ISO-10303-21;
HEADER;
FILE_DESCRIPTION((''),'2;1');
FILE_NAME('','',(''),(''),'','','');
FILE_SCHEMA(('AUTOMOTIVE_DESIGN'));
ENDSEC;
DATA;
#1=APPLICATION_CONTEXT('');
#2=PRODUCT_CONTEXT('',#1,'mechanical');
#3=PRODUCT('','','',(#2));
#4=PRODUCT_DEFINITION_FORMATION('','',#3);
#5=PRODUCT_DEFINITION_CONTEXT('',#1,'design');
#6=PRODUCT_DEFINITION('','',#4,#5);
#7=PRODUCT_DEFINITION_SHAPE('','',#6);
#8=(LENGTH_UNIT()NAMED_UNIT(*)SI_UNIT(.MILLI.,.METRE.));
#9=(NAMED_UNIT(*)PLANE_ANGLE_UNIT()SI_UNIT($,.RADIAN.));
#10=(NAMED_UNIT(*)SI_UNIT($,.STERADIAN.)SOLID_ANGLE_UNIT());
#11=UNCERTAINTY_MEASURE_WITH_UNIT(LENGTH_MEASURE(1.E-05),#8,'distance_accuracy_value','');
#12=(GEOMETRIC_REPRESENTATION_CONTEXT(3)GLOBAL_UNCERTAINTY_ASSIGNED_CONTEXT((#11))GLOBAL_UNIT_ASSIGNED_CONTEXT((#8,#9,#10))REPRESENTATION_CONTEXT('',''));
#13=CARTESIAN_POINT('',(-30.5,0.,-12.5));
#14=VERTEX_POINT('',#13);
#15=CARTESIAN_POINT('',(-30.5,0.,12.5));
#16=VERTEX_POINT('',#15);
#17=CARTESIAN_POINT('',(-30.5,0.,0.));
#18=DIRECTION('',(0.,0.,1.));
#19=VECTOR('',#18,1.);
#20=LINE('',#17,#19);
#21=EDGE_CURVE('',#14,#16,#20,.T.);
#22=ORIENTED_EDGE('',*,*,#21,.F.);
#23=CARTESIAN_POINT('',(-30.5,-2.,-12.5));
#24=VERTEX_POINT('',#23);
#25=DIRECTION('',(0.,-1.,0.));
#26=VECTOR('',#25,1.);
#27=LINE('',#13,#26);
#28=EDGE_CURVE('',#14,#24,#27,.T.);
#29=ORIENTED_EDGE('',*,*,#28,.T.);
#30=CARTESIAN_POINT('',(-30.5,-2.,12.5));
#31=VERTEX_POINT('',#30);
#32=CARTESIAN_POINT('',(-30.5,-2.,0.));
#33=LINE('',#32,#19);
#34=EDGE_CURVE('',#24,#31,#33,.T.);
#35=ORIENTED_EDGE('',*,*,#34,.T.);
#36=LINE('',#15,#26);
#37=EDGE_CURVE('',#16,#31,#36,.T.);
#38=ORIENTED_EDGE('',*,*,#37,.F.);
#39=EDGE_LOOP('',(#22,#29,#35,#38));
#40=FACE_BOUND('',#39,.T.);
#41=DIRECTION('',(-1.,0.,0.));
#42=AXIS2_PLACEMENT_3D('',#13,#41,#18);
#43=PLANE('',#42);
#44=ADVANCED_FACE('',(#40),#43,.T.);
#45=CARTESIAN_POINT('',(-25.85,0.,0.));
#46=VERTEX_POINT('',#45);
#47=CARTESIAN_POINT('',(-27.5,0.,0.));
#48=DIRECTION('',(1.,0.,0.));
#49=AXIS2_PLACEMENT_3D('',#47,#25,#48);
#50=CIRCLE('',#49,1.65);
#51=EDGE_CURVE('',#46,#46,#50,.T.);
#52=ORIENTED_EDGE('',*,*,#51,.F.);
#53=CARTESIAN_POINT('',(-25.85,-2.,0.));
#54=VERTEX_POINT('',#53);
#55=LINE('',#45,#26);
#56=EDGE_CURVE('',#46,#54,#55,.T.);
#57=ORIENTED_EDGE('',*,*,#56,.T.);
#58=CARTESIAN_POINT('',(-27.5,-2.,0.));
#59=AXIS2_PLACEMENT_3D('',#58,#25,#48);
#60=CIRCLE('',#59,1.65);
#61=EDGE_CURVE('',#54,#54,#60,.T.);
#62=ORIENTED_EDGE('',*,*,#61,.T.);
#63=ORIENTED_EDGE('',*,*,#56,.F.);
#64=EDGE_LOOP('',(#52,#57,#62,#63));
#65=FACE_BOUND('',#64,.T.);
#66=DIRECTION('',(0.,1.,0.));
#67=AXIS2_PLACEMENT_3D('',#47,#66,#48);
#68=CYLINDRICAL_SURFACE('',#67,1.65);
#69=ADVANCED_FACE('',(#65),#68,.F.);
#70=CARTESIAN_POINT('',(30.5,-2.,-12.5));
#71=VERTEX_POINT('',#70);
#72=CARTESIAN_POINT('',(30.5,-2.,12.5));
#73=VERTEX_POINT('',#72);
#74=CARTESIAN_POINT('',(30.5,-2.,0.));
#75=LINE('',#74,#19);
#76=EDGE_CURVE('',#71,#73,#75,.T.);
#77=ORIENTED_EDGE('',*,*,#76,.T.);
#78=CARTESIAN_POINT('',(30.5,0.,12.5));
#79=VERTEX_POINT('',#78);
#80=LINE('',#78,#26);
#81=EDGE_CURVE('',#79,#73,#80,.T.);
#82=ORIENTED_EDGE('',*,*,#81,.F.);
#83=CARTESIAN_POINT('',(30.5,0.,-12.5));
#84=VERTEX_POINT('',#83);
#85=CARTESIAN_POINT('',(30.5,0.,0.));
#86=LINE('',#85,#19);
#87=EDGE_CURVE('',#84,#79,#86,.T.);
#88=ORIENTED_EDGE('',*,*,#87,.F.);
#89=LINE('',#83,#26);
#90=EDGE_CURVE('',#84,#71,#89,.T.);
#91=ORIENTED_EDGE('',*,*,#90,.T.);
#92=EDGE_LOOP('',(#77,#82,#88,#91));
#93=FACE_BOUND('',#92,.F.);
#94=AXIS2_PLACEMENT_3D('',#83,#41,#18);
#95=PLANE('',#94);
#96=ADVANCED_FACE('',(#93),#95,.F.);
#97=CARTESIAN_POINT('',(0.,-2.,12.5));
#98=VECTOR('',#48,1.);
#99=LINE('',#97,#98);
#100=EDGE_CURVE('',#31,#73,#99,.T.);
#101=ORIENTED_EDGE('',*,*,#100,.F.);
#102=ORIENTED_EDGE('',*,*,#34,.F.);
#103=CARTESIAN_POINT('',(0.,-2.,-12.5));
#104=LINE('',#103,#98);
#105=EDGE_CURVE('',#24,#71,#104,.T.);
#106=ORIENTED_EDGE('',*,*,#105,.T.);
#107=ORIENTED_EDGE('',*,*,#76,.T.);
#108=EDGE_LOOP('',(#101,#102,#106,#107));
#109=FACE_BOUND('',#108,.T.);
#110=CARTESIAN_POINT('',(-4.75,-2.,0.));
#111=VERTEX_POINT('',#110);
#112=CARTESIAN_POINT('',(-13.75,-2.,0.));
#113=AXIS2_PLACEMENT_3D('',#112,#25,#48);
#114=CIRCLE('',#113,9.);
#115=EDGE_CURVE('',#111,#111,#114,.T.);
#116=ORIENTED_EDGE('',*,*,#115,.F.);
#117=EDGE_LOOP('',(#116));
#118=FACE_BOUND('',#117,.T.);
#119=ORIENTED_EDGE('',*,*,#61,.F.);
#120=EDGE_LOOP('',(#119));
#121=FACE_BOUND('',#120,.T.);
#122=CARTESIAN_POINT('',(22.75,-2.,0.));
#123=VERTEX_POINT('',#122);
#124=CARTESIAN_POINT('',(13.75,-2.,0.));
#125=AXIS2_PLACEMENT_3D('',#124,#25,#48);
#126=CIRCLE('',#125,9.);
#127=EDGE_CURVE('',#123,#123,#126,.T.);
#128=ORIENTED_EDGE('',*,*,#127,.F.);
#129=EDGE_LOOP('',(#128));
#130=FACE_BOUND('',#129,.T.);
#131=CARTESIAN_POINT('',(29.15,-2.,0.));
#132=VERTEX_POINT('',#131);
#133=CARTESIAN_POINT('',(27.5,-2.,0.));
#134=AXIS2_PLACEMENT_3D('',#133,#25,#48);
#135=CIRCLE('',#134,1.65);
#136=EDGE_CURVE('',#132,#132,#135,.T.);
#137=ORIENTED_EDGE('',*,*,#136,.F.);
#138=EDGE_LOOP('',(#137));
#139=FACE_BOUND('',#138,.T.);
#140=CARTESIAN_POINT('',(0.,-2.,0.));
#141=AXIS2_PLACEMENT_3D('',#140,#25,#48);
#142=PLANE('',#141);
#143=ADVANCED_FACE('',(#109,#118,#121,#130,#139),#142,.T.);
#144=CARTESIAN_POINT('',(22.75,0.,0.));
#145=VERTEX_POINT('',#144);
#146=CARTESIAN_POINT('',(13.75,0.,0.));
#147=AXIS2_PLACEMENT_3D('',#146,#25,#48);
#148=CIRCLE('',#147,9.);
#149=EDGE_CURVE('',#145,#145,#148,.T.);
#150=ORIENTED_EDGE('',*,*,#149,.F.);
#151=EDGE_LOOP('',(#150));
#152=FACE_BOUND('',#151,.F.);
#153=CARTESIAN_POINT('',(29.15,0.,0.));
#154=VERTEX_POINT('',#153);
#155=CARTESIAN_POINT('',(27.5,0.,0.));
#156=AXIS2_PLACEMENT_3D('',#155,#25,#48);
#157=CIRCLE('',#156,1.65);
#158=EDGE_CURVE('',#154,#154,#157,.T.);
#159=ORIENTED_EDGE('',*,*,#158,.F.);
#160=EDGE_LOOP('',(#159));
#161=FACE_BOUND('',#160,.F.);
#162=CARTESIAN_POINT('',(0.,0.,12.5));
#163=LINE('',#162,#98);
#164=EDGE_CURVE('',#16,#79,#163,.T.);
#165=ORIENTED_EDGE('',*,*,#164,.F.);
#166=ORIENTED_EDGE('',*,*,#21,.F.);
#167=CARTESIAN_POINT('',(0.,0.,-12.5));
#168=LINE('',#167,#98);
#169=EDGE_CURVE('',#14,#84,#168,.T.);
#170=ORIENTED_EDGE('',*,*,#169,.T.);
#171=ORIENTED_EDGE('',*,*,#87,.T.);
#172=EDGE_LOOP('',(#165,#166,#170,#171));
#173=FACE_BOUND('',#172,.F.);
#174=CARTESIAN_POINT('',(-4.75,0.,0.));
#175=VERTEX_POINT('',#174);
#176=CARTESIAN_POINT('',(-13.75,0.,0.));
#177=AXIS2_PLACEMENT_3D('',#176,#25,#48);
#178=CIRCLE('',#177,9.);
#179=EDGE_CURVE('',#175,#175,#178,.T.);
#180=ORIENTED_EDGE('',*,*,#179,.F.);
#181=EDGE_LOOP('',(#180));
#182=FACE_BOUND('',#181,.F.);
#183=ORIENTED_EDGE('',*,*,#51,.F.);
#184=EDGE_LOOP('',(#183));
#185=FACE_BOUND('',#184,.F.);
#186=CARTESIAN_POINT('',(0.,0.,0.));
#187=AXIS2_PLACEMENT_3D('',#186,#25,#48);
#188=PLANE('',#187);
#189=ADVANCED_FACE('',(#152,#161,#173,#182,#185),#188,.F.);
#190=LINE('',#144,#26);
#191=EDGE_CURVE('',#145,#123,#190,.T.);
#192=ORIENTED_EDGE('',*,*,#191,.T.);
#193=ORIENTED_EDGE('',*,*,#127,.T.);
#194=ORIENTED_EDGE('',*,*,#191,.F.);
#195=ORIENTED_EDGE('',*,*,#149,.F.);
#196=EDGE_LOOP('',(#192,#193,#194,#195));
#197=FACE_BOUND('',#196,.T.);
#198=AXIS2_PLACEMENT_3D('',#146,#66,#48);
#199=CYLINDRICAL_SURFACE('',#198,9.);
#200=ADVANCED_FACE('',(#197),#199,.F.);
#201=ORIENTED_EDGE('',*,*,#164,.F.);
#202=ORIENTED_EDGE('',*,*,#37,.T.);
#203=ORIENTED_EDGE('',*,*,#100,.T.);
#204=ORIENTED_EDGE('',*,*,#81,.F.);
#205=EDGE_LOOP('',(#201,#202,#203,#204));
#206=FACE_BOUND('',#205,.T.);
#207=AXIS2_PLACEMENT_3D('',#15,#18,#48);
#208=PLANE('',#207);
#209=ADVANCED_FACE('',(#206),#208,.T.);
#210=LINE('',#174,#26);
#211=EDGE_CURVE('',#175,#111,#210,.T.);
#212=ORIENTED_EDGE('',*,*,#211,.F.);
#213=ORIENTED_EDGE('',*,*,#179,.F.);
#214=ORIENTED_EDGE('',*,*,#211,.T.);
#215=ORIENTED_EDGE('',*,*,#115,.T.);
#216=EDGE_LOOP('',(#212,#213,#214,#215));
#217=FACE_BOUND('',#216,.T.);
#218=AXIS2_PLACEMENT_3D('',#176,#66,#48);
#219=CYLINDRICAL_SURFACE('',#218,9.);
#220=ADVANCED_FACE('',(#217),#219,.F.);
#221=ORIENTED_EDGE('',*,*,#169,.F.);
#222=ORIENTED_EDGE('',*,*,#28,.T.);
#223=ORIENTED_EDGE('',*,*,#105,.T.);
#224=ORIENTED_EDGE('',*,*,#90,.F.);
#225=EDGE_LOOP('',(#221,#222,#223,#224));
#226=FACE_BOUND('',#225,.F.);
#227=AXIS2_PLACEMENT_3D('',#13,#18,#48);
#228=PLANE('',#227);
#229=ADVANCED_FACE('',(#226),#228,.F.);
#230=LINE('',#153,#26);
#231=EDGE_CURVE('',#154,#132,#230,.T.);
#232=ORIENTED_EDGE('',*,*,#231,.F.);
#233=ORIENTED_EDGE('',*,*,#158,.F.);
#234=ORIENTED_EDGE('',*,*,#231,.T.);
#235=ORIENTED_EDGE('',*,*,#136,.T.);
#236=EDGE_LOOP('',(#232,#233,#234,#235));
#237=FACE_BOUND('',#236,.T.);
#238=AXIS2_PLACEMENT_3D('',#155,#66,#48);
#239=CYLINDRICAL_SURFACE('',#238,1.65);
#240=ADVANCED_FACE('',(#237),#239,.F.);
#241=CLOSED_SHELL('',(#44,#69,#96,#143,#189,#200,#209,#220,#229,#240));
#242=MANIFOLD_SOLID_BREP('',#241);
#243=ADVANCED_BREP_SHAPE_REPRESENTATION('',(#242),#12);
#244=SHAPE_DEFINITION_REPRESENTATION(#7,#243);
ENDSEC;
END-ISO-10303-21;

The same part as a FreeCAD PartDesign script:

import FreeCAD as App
import Part
import Sketcher

V = App.Vector


def add_polygon(sketch, points):
    """Adds a closed chain of lines whose ends are joined by coincident constraints."""
    first, n = sketch.GeometryCount, len(points)
    for a, b in zip(points, points[1:] + points[:1]):
        sketch.addGeometry(Part.LineSegment(App.Vector(*a, 0), App.Vector(*b, 0)), False)
    for i in range(n):
        sketch.addConstraint(Sketcher.Constraint("Coincident", first + i, 2, first + (i + 1) % n, 1))

doc = App.newDocument("Part")
body = doc.addObject("PartDesign::Body", "Body")

sketch1 = body.newObject("Sketcher::SketchObject", "Sketch")
sketch1.AttachmentSupport = (doc.getObject("XZ_Plane"), [""])
sketch1.MapMode = "FlatFace"
add_polygon(sketch1, [(-30.5, 12.5), (-30.5, -12.5), (30.5, -12.5), (30.5, 12.5)])
sketch1.addGeometry(Part.Circle(V(-27.5, 0, 0), V(0, 0, 1), 1.6), False)
sketch1.addGeometry(Part.Circle(V(-13.8, 0, 0), V(0, 0, 1), 9), False)
sketch1.addGeometry(Part.Circle(V(13.8, 0, 0), V(0, 0, 1), 9), False)
sketch1.addGeometry(Part.Circle(V(27.5, 0, 0), V(0, 0, 1), 1.6), False)
sketch1.addConstraint([
    Sketcher.Constraint("Vertical", 0),
    Sketcher.Constraint("Horizontal", 1),
    Sketcher.Constraint("Vertical", 2),
    Sketcher.Constraint("Horizontal", 3),
    Sketcher.Constraint("Equal", 5, 6),
    Sketcher.Constraint("Equal", 4, 7),
    Sketcher.Constraint("Symmetric", 5, 3, 6, 3, -1, 1),
    Sketcher.Constraint("Symmetric", 4, 3, 7, 3, -1, 1),
    Sketcher.Constraint("Symmetric", 0, 2, 2, 2, -1, 1),
    Sketcher.Constraint("PointOnObject", 4, 3, -1),
    Sketcher.Constraint("PointOnObject", 5, 3, -1),
    Sketcher.Constraint("Diameter", 5, 18.0),
    Sketcher.Constraint("Diameter", 4, 3.3),
    Sketcher.Constraint("DistanceX", 1, 1, 1, 2, 61.0),
    Sketcher.Constraint("DistanceY", 0, 2, 0, 1, 25.0),
    Sketcher.Constraint("DistanceX", 4, 3, 7, 3, 55.0),
    Sketcher.Constraint("DistanceX", 5, 3, 6, 3, 27.5),
])
pad1 = body.newObject("PartDesign::Pad", "Pad")
pad1.Profile = sketch1
pad1.Length = 2

doc.recompute()
